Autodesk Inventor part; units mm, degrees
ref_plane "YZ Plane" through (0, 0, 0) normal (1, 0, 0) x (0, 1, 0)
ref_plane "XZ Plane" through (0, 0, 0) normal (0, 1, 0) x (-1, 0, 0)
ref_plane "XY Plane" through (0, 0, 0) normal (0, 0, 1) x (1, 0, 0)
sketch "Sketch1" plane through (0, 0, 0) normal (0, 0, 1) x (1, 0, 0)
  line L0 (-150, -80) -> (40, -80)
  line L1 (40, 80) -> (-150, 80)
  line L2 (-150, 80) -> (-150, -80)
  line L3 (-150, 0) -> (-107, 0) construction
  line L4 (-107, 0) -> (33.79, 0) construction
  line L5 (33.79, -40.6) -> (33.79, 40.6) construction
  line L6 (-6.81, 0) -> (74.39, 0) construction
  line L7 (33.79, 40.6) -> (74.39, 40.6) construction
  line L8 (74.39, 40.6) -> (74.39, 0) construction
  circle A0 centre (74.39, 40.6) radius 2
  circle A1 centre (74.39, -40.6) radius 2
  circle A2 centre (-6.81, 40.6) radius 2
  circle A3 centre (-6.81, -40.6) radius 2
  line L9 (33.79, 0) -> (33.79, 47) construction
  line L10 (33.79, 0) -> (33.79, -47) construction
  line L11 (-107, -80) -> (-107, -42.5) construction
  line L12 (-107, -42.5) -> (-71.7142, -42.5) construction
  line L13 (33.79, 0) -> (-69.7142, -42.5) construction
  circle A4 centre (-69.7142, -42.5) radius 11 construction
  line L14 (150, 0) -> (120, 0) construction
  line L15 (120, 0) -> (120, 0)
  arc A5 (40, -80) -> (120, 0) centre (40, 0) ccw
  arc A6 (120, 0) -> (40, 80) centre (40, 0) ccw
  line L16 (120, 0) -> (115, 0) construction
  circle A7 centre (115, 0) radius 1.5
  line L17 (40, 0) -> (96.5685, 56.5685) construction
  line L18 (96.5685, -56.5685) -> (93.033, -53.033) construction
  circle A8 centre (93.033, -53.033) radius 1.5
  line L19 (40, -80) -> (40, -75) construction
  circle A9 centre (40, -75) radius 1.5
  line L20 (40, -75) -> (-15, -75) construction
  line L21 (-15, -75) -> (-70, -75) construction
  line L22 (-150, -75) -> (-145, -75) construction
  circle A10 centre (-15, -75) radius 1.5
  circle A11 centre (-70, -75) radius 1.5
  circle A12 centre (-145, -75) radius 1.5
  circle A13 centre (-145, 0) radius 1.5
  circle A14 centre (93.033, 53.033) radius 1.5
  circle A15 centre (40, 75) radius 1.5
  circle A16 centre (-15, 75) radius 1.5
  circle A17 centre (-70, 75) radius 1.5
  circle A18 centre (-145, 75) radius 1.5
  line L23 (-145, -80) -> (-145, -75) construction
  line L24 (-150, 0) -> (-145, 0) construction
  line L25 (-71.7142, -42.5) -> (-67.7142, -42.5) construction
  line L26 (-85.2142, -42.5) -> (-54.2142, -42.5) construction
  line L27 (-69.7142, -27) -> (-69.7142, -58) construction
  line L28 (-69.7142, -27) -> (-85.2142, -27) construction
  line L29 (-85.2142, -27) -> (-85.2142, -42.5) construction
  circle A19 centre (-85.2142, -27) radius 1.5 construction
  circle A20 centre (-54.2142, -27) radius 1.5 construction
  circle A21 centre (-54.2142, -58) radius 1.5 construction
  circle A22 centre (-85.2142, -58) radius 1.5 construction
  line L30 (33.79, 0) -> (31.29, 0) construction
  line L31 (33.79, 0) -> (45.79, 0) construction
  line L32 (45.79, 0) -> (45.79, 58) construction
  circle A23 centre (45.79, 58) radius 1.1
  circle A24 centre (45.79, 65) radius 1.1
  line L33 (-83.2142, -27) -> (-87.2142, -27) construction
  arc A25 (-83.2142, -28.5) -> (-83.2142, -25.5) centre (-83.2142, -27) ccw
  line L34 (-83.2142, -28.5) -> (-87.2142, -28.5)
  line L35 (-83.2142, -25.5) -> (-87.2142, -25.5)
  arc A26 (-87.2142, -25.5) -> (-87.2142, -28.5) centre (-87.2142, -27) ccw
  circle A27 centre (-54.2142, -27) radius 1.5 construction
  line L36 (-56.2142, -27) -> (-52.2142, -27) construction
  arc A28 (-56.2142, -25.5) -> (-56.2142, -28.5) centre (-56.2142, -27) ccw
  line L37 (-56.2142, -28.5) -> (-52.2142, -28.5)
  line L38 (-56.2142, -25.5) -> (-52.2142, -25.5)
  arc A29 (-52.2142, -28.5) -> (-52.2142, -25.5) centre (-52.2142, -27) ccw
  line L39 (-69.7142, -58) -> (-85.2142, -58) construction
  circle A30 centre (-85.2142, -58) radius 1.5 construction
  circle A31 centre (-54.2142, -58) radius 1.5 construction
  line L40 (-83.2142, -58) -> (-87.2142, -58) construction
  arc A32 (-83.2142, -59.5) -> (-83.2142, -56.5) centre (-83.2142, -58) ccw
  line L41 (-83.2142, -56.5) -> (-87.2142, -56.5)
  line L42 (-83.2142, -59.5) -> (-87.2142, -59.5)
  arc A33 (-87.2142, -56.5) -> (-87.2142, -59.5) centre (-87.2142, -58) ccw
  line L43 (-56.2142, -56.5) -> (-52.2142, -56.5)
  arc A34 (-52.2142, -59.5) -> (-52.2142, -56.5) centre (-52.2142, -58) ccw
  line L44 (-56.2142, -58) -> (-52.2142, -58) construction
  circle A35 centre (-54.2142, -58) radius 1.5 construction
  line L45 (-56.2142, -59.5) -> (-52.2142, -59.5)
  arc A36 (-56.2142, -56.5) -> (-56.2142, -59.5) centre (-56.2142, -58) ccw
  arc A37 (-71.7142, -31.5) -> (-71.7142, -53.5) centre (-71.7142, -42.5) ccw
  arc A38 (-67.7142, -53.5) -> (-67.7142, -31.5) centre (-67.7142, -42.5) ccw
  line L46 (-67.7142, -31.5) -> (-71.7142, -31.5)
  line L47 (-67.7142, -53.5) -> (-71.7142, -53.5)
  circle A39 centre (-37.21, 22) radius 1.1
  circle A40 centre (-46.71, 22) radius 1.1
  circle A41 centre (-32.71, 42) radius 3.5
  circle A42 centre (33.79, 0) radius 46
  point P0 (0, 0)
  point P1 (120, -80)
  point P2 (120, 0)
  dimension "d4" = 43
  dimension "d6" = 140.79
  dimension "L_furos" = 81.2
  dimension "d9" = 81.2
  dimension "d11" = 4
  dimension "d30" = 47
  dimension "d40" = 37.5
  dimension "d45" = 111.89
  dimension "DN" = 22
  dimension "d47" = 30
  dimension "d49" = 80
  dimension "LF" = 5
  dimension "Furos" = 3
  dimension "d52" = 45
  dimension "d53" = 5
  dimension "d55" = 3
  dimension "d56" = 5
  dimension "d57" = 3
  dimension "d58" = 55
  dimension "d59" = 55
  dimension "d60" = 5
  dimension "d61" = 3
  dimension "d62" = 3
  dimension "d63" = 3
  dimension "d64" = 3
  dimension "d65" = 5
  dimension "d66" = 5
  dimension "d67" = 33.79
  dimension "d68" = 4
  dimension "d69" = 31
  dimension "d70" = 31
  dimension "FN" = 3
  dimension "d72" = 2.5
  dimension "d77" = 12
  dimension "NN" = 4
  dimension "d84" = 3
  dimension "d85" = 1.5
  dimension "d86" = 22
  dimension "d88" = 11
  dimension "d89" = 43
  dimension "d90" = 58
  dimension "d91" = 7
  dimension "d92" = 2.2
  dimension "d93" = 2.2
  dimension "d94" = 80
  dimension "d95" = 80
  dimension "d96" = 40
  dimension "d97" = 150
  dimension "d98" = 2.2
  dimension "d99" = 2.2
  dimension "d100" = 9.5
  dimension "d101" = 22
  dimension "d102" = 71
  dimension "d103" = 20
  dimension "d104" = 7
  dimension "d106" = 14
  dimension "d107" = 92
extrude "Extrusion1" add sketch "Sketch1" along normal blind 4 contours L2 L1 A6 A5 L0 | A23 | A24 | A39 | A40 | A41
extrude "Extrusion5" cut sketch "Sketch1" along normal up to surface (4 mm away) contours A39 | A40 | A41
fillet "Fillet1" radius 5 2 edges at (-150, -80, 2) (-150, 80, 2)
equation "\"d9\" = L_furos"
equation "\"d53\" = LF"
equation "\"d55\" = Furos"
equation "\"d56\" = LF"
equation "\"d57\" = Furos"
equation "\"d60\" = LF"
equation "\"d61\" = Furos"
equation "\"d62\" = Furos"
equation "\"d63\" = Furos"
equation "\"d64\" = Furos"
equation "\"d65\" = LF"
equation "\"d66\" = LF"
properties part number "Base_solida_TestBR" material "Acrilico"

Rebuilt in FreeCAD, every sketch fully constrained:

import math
import FreeCAD as App
import Part
import Sketcher

V = App.Vector
Q = App.Units.Quantity


def edges_at(feature, points):
    """Names of the edges that pass closest to the given points."""
    edges = feature.Shape.Edges
    near = lambda p: min(range(len(edges)), key=lambda i: edges[i].distToShape(Part.Vertex(*p))[0])
    return sorted({f"Edge{near(p) + 1}" for p in points})

doc = App.newDocument("Part")
body = doc.addObject("PartDesign::Body", "Body")

# Sketch on XY plane
sketch1 = doc.addObject("Sketcher::SketchObject", "Sketch")
body.addObject(sketch1)
sketch1.AttachmentSupport = (doc.XY_Plane, [""])
sketch1.MapMode = "FlatFace"
sketch1.addGeometry(Part.LineSegment(V(-150, 80, 0), V(-150, -80, 0)), False)
sketch1.addGeometry(Part.LineSegment(V(-150, -80, 0), V(40, -80, 0)), False)
sketch1.addGeometry(Part.ArcOfCircle(Part.Circle(V(40, 0, 0), V(0, 0, 1), 80), math.radians(-90), math.radians(90)), False)
sketch1.addGeometry(Part.LineSegment(V(40, 80, 0), V(-150, 80, 0)), False)
sketch1.addGeometry(Part.Circle(V(-145, -75, 0), V(0, 0, 1), 1.5), False)
sketch1.addGeometry(Part.ArcOfCircle(Part.Circle(V(-83.2142, -58, 0), V(0, 0, 1), 1.5), math.radians(-90), math.radians(90)), False)
sketch1.addGeometry(Part.LineSegment(V(-83.2142, -59.5, 0), V(-87.2142, -59.5, 0)), False)
sketch1.addGeometry(Part.ArcOfCircle(Part.Circle(V(-87.2142, -58, 0), V(0, 0, 1), 1.5), math.radians(90), math.radians(270)), False)
sketch1.addGeometry(Part.LineSegment(V(-87.2142, -56.5, 0), V(-83.2142, -56.5, 0)), False)
sketch1.addGeometry(Part.Circle(V(-70, -75, 0), V(0, 0, 1), 1.5), False)
sketch1.addGeometry(Part.ArcOfCircle(Part.Circle(V(-56.2142, -58, 0), V(0, 0, 1), 1.5), math.radians(90), math.radians(270)), False)
sketch1.addGeometry(Part.LineSegment(V(-56.2142, -56.5, 0), V(-52.2142, -56.5, 0)), False)
sketch1.addGeometry(Part.ArcOfCircle(Part.Circle(V(-52.2142, -58, 0), V(0, 0, 1), 1.5), math.radians(-90), math.radians(90)), False)
sketch1.addGeometry(Part.LineSegment(V(-52.2142, -59.5, 0), V(-56.2142, -59.5, 0)), False)
sketch1.addGeometry(Part.ArcOfCircle(Part.Circle(V(-71.7142, -42.5, 0), V(0, 0, 1), 11), math.radians(90), math.radians(270)), False)
sketch1.addGeometry(Part.LineSegment(V(-71.7142, -31.5, 0), V(-67.7142, -31.5, 0)), False)
sketch1.addGeometry(Part.ArcOfCircle(Part.Circle(V(-67.7142, -42.5, 0), V(0, 0, 1), 11), math.radians(-90), math.radians(90)), False)
sketch1.addGeometry(Part.LineSegment(V(-67.7142, -53.5, 0), V(-71.7142, -53.5, 0)), False)
sketch1.addGeometry(Part.ArcOfCircle(Part.Circle(V(-83.2142, -27, 0), V(0, 0, 1), 1.5), math.radians(-90), math.radians(90)), False)
sketch1.addGeometry(Part.LineSegment(V(-83.2142, -28.5, 0), V(-87.2142, -28.5, 0)), False)
sketch1.addGeometry(Part.ArcOfCircle(Part.Circle(V(-87.2142, -27, 0), V(0, 0, 1), 1.5), math.radians(90), math.radians(270)), False)
sketch1.addGeometry(Part.LineSegment(V(-87.2142, -25.5, 0), V(-83.2142, -25.5, 0)), False)
sketch1.addGeometry(Part.ArcOfCircle(Part.Circle(V(-56.2142, -27, 0), V(0, 0, 1), 1.5), math.radians(90), math.radians(270)), False)
sketch1.addGeometry(Part.LineSegment(V(-56.2142, -25.5, 0), V(-52.2142, -25.5, 0)), False)
sketch1.addGeometry(Part.ArcOfCircle(Part.Circle(V(-52.2142, -27, 0), V(0, 0, 1), 1.5), math.radians(-90), math.radians(90)), False)
sketch1.addGeometry(Part.LineSegment(V(-52.2142, -28.5, 0), V(-56.2142, -28.5, 0)), False)
sketch1.addGeometry(Part.Circle(V(-15, -75, 0), V(0, 0, 1), 1.5), False)
sketch1.addGeometry(Part.Circle(V(40, -75, 0), V(0, 0, 1), 1.5), False)
sketch1.addGeometry(Part.Circle(V(-6.81, -40.6, 0), V(0, 0, 1), 2), False)
sketch1.addGeometry(Part.Circle(V(74.39, -40.6, 0), V(0, 0, 1), 2), False)
sketch1.addGeometry(Part.Circle(V(93.033, -53.033, 0), V(0, 0, 1), 1.5), False)
sketch1.addGeometry(Part.Circle(V(-145, 0, 0), V(0, 0, 1), 1.5), False)
sketch1.addGeometry(Part.Circle(V(-145, 75, 0), V(0, 0, 1), 1.5), False)
sketch1.addGeometry(Part.Circle(V(-70, 75, 0), V(0, 0, 1), 1.5), False)
sketch1.addGeometry(Part.Circle(V(33.79, 0, 0), V(0, 0, 1), 46), False)
sketch1.addGeometry(Part.Circle(V(115, 0, 0), V(0, 0, 1), 1.5), False)
sketch1.addGeometry(Part.Circle(V(-6.81, 40.6, 0), V(0, 0, 1), 2), False)
sketch1.addGeometry(Part.Circle(V(-15, 75, 0), V(0, 0, 1), 1.5), False)
sketch1.addGeometry(Part.Circle(V(40, 75, 0), V(0, 0, 1), 1.5), False)
sketch1.addGeometry(Part.Circle(V(74.39, 40.6, 0), V(0, 0, 1), 2), False)
sketch1.addGeometry(Part.Circle(V(93.033, 53.033, 0), V(0, 0, 1), 1.5), False)
sketch1.addConstraint(Sketcher.Constraint("Coincident", 0, 2, 1, 1))
sketch1.addConstraint(Sketcher.Constraint("Tangent", 1, 2, 2, 1))
sketch1.addConstraint(Sketcher.Constraint("Tangent", 2, 2, 3, 1))
sketch1.addConstraint(Sketcher.Constraint("Coincident", 3, 2, 0, 1))
sketch1.addConstraint(Sketcher.Constraint("Tangent", 5, 1, 6, 1))
sketch1.addConstraint(Sketcher.Constraint("Tangent", 6, 2, 7, 2))
sketch1.addConstraint(Sketcher.Constraint("Tangent", 7, 1, 8, 1))
sketch1.addConstraint(Sketcher.Constraint("Tangent", 8, 2, 5, 2))
sketch1.addConstraint(Sketcher.Constraint("Tangent", 10, 1, 11, 1))
sketch1.addConstraint(Sketcher.Constraint("Tangent", 11, 2, 12, 2))
sketch1.addConstraint(Sketcher.Constraint("Tangent", 12, 1, 13, 1))
sketch1.addConstraint(Sketcher.Constraint("Tangent", 13, 2, 10, 2))
sketch1.addConstraint(Sketcher.Constraint("Tangent", 14, 1, 15, 1))
sketch1.addConstraint(Sketcher.Constraint("Tangent", 15, 2, 16, 2))
sketch1.addConstraint(Sketcher.Constraint("Tangent", 16, 1, 17, 1))
sketch1.addConstraint(Sketcher.Constraint("Tangent", 17, 2, 14, 2))
sketch1.addConstraint(Sketcher.Constraint("Tangent", 18, 1, 19, 1))
sketch1.addConstraint(Sketcher.Constraint("Tangent", 19, 2, 20, 2))
sketch1.addConstraint(Sketcher.Constraint("Tangent", 20, 1, 21, 1))
sketch1.addConstraint(Sketcher.Constraint("Tangent", 21, 2, 18, 2))
sketch1.addConstraint(Sketcher.Constraint("Tangent", 22, 1, 23, 1))
sketch1.addConstraint(Sketcher.Constraint("Tangent", 23, 2, 24, 2))
sketch1.addConstraint(Sketcher.Constraint("Tangent", 24, 1, 25, 1))
sketch1.addConstraint(Sketcher.Constraint("Tangent", 25, 2, 22, 2))
sketch1.addConstraint(Sketcher.Constraint("Vertical", 0))
sketch1.addConstraint(Sketcher.Constraint("Horizontal", 1))
sketch1.addConstraint(Sketcher.Constraint("Horizontal", 3))
sketch1.addConstraint(Sketcher.Constraint("Horizontal", 6))
sketch1.addConstraint(Sketcher.Constraint("Horizontal", 8))
sketch1.addConstraint(Sketcher.Constraint("Horizontal", 11))
sketch1.addConstraint(Sketcher.Constraint("Horizontal", 13))
sketch1.addConstraint(Sketcher.Constraint("Horizontal", 15))
sketch1.addConstraint(Sketcher.Constraint("Horizontal", 17))
sketch1.addConstraint(Sketcher.Constraint("Horizontal", 19))
sketch1.addConstraint(Sketcher.Constraint("Horizontal", 21))
sketch1.addConstraint(Sketcher.Constraint("Horizontal", 23))
sketch1.addConstraint(Sketcher.Constraint("Horizontal", 25))
sketch1.addConstraint(Sketcher.Constraint("Equal", 4, 5))
sketch1.addConstraint(Sketcher.Constraint("Equal", 7, 9))
sketch1.addConstraint(Sketcher.Constraint("Equal", 9, 10))
sketch1.addConstraint(Sketcher.Constraint("Equal", 12, 18))
sketch1.addConstraint(Sketcher.Constraint("Equal", 20, 22))
sketch1.addConstraint(Sketcher.Constraint("Equal", 24, 26))
sketch1.addConstraint(Sketcher.Constraint("Equal", 26, 27))
sketch1.addConstraint(Sketcher.Constraint("Equal", 28, 29))
sketch1.addConstraint(Sketcher.Constraint("Equal", 27, 30))
sketch1.addConstraint(Sketcher.Constraint("Equal", 30, 31))
sketch1.addConstraint(Sketcher.Constraint("Equal", 31, 32))
sketch1.addConstraint(Sketcher.Constraint("Equal", 32, 33))
sketch1.addConstraint(Sketcher.Constraint("Equal", 33, 35))
sketch1.addConstraint(Sketcher.Constraint("Equal", 29, 36))
sketch1.addConstraint(Sketcher.Constraint("Equal", 35, 37))
sketch1.addConstraint(Sketcher.Constraint("Equal", 37, 38))
sketch1.addConstraint(Sketcher.Constraint("Equal", 36, 39))
sketch1.addConstraint(Sketcher.Constraint("Equal", 38, 40))
sketch1.addConstraint(Sketcher.Constraint("Symmetric", 4, 3, 32, 3, -1))
sketch1.addConstraint(Sketcher.Constraint("Symmetric", 9, 3, 33, 3, -1))
sketch1.addConstraint(Sketcher.Constraint("Symmetric", 28, 3, 36, 3, -1))
sketch1.addConstraint(Sketcher.Constraint("Symmetric", 26, 3, 37, 3, -1))
sketch1.addConstraint(Sketcher.Constraint("Symmetric", 27, 3, 38, 3, -1))
sketch1.addConstraint(Sketcher.Constraint("Symmetric", 29, 3, 39, 3, -1))
sketch1.addConstraint(Sketcher.Constraint("Symmetric", 30, 3, 40, 3, -1))
sketch1.addConstraint(Sketcher.Constraint("PointOnObject", 2, 3, -1))
sketch1.addConstraint(Sketcher.Constraint("PointOnObject", 31, 3, -1))
sketch1.addConstraint(Sketcher.Constraint("PointOnObject", 34, 3, -1))
sketch1.addConstraint(Sketcher.Constraint("PointOnObject", 35, 3, -1))
sketch1.addConstraint(Sketcher.Constraint("Horizontal", 4, 3, 9, 3))
sketch1.addConstraint(Sketcher.Constraint("Horizontal", 7, 3, 10, 3))
sketch1.addConstraint(Sketcher.Constraint("Horizontal", 20, 3, 22, 3))
sketch1.addConstraint(Sketcher.Constraint("Horizontal", 9, 3, 26, 3))
sketch1.addConstraint(Sketcher.Constraint("Horizontal", 26, 3, 27, 3))
sketch1.addConstraint(Sketcher.Constraint("Horizontal", 28, 3, 29, 3))
sketch1.addConstraint(Sketcher.Constraint("Vertical", 5, 3, 18, 3))
sketch1.addConstraint(Sketcher.Constraint("Vertical", 7, 3, 20, 3))
sketch1.addConstraint(Sketcher.Constraint("Vertical", 10, 3, 22, 3))
sketch1.addConstraint(Sketcher.Constraint("Vertical", 12, 3, 24, 3))
sketch1.addConstraint(Sketcher.Constraint("Vertical", 2, 3, 27, 3))
sketch1.addConstraint(Sketcher.Constraint("Vertical", 4, 3, 31, 3))
sketch1.addConstraint(Sketcher.Constraint("Equal", 8, 11))
sketch1.addConstraint(Sketcher.Constraint("Equal", 13, 15))
sketch1.addConstraint(Sketcher.Constraint("Diameter", 4, Q("3 mm")))
sketch1.addConstraint(Sketcher.Constraint("Diameter", 28, Q("4 mm")))
sketch1.addConstraint(Sketcher.Constraint("Diameter", 34, Q("92 mm")))
sketch1.addConstraint(Sketcher.Constraint("Radius", 2, Q("80 mm")))
sketch1.addConstraint(Sketcher.Constraint("Radius", 14, Q("11 mm")))
sketch1.addConstraint(Sketcher.Constraint("DistanceX", 6, 2, 6, 1, Q("4 mm")))
sketch1.addConstraint(Sketcher.Constraint("DistanceX", -1, 1, 2, 3, Q("40 mm")))
sketch1.addConstraint(Sketcher.Constraint("DistanceY", 5, 3, -1, 1, Q("58 mm")))
sketch1.addConstraint(Sketcher.Constraint("DistanceX", 0, 2, -1, 1, Q("150 mm")))
sketch1.addConstraint(Sketcher.Constraint("DistanceX", 7, 3, 10, 3, Q("31 mm")))
sketch1.addConstraint(Sketcher.Constraint("DistanceY", 5, 3, 18, 3, Q("31 mm")))
sketch1.addConstraint(Sketcher.Constraint("DistanceX", 9, 3, 26, 3, Q("55 mm")))
sketch1.addConstraint(Sketcher.Constraint("DistanceX", 26, 3, 27, 3, Q("55 mm")))
sketch1.addConstraint(Sketcher.Constraint("DistanceX", 0, 2, 4, 3, Q("5 mm")))
sketch1.addConstraint(Sketcher.Constraint("DistanceY", 0, 2, 4, 3, Q("5 mm")))
sketch1.addConstraint(Sketcher.Constraint("DistanceY", 7, 1, 14, 3, Q("14 mm")))
sketch1.addConstraint(Sketcher.Constraint("DistanceX", 28, 3, 29, 3, Q("81.2 mm")))
sketch1.addConstraint(Sketcher.Constraint("DistanceY", 28, 3, 36, 3, Q("81.2 mm")))
sketch1.addConstraint(Sketcher.Constraint("DistanceX", -1, 1, 34, 3, Q("33.79 mm")))
sketch1.addConstraint(Sketcher.Constraint("DistanceX", -1, 1, 35, 3, Q("115 mm")))
sketch1.addConstraint(Sketcher.Constraint("DistanceX", 5, 3, 14, 3, Q("11.5 mm")))
sketch1.addConstraint(Sketcher.Constraint("DistanceX", 28, 3, 34, 3, Q("40.6 mm")))
sketch1.addConstraint(Sketcher.Constraint("DistanceX", -1, 1, 30, 3, Q("93.033 mm")))
sketch1.addConstraint(Sketcher.Constraint("DistanceY", 30, 3, -1, 1, Q("53.033 mm")))
sketch1.addConstraint(Sketcher.Constraint("DistanceX", 5, 3, -1, 1, Q("83.2142 mm")))
pad1 = doc.addObject("PartDesign::Pad", "Pad")
body.addObject(pad1)
pad1.Profile = sketch1
pad1.Length = 4

# Sketch on XY plane
sketch2 = doc.addObject("Sketcher::SketchObject", "Sketch001")
body.addObject(sketch2)
sketch2.AttachmentSupport = (doc.XY_Plane, [""])
sketch2.MapMode = "FlatFace"
sketch2.addGeometry(Part.Circle(V(-37.21, 22, 0), V(0, 0, 1), 1.1), False)
sketch2.addGeometry(Part.Circle(V(-46.71, 22, 0), V(0, 0, 1), 1.1), False)
sketch2.addGeometry(Part.Circle(V(-32.71, 42, 0), V(0, 0, 1), 3.5), False)
sketch2.addConstraint(Sketcher.Constraint("Equal", 0, 1))
sketch2.addConstraint(Sketcher.Constraint("Horizontal", 0, 3, 1, 3))
sketch2.addConstraint(Sketcher.Constraint("Diameter", 2, Q("7 mm")))
sketch2.addConstraint(Sketcher.Constraint("Diameter", 0, Q("2.2 mm")))
sketch2.addConstraint(Sketcher.Constraint("DistanceY", -1, 1, 0, 3, Q("22 mm")))
sketch2.addConstraint(Sketcher.Constraint("DistanceY", 0, 3, 2, 3, Q("20 mm")))
sketch2.addConstraint(Sketcher.Constraint("DistanceX", 1, 3, 2, 3, Q("14 mm")))
sketch2.addConstraint(Sketcher.Constraint("DistanceX", 1, 3, 0, 3, Q("9.5 mm")))
sketch2.addConstraint(Sketcher.Constraint("DistanceX", 0, 3, -1, 1, Q("37.21 mm")))
pocket1 = doc.addObject("PartDesign::Pocket", "Pocket")
body.addObject(pocket1)
pocket1.Profile = sketch2
pocket1.Length = 4
pocket1.Reversed = True
doc.recompute()

fillet = doc.addObject("PartDesign::Fillet", "Fillet")
body.addObject(fillet)
fillet.Base = (pocket1, edges_at(pocket1, [(-150, -80, 2), (-150, 80, 2)]))
fillet.Radius = 5

doc.recompute()
